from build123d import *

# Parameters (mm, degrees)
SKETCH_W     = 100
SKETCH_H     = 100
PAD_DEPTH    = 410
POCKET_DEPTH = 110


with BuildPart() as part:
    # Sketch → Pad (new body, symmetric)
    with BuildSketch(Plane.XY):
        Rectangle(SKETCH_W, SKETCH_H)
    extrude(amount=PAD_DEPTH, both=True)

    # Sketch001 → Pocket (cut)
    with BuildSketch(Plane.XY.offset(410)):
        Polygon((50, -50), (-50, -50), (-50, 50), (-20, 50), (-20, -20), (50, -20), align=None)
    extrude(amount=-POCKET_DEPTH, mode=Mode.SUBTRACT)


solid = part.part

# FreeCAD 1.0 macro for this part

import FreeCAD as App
import Part
import Sketcher
Q = App.Units.Quantity


def add_polygon(sketch, points):
    """Adds a closed chain of lines whose ends are joined by coincident constraints."""
    first, n = sketch.GeometryCount, len(points)
    for a, b in zip(points, points[1:] + points[:1]):
        sketch.addGeometry(Part.LineSegment(App.Vector(*a, 0), App.Vector(*b, 0)), False)
    for i in range(n):
        sketch.addConstraint(Sketcher.Constraint("Coincident", first + i, 2, first + (i + 1) % n, 1))

doc = App.newDocument("Part")
body = doc.addObject("PartDesign::Body", "Body")

# Sketch on XY plane
sketch1 = body.newObject("Sketcher::SketchObject", "Sketch")
sketch1.AttachmentSupport = (doc.getObject("XY_Plane"), [""])
sketch1.MapMode = "FlatFace"
add_polygon(sketch1, [(-50, 50), (-50, -50), (50, -50), (50, 50)])  # lines 0-3
sketch1.addConstraint([
    Sketcher.Constraint("Vertical", 0),
    Sketcher.Constraint("Horizontal", 1),
    Sketcher.Constraint("Vertical", 2),
    Sketcher.Constraint("Horizontal", 3),
    Sketcher.Constraint("Symmetric", 0, 2, 2, 2, -1, 1),
    Sketcher.Constraint("Equal", 3, 0),
    Sketcher.Constraint("DistanceX", 1, 1, 1, 2, Q("100 mm")),
])
pad1 = body.newObject("PartDesign::Pad", "Pad")
pad1.Profile = sketch1
pad1.Length = 820
pad1.Midplane = True

# Sketch on XY plane
sketch2 = body.newObject("Sketcher::SketchObject", "Sketch001")
sketch2.AttachmentSupport = (doc.getObject("XY_Plane"), [""])
sketch2.MapMode = "FlatFace"
sketch2.AttachmentOffset = App.Placement(App.Vector(0, 0, 410), App.Rotation())
add_polygon(sketch2, [(-50, -50), (50, -50), (50, -20), (-20, -20), (-20, 50), (-50, 50)])  # lines 0-5
sketch2.addConstraint([
    Sketcher.Constraint("Horizontal", 0),
    Sketcher.Constraint("Vertical", 1),
    Sketcher.Constraint("Horizontal", 2),
    Sketcher.Constraint("Vertical", 3),
    Sketcher.Constraint("Horizontal", 4),
    Sketcher.Constraint("Vertical", 5),
    Sketcher.Constraint("Symmetric", 0, 2, 4, 2, -1, 1),
    Sketcher.Constraint("Equal", 4, 1),
    Sketcher.Constraint("Equal", 2, 3),
    Sketcher.Constraint("DistanceX", 0, 1, 0, 2, Q("100 mm")),
    Sketcher.Constraint("DistanceX", 2, 2, 2, 1, Q("70 mm")),
])
pocket1 = body.newObject("PartDesign::Pocket", "Pocket")
pocket1.Profile = sketch2
pocket1.Length = 110

doc.recompute()
